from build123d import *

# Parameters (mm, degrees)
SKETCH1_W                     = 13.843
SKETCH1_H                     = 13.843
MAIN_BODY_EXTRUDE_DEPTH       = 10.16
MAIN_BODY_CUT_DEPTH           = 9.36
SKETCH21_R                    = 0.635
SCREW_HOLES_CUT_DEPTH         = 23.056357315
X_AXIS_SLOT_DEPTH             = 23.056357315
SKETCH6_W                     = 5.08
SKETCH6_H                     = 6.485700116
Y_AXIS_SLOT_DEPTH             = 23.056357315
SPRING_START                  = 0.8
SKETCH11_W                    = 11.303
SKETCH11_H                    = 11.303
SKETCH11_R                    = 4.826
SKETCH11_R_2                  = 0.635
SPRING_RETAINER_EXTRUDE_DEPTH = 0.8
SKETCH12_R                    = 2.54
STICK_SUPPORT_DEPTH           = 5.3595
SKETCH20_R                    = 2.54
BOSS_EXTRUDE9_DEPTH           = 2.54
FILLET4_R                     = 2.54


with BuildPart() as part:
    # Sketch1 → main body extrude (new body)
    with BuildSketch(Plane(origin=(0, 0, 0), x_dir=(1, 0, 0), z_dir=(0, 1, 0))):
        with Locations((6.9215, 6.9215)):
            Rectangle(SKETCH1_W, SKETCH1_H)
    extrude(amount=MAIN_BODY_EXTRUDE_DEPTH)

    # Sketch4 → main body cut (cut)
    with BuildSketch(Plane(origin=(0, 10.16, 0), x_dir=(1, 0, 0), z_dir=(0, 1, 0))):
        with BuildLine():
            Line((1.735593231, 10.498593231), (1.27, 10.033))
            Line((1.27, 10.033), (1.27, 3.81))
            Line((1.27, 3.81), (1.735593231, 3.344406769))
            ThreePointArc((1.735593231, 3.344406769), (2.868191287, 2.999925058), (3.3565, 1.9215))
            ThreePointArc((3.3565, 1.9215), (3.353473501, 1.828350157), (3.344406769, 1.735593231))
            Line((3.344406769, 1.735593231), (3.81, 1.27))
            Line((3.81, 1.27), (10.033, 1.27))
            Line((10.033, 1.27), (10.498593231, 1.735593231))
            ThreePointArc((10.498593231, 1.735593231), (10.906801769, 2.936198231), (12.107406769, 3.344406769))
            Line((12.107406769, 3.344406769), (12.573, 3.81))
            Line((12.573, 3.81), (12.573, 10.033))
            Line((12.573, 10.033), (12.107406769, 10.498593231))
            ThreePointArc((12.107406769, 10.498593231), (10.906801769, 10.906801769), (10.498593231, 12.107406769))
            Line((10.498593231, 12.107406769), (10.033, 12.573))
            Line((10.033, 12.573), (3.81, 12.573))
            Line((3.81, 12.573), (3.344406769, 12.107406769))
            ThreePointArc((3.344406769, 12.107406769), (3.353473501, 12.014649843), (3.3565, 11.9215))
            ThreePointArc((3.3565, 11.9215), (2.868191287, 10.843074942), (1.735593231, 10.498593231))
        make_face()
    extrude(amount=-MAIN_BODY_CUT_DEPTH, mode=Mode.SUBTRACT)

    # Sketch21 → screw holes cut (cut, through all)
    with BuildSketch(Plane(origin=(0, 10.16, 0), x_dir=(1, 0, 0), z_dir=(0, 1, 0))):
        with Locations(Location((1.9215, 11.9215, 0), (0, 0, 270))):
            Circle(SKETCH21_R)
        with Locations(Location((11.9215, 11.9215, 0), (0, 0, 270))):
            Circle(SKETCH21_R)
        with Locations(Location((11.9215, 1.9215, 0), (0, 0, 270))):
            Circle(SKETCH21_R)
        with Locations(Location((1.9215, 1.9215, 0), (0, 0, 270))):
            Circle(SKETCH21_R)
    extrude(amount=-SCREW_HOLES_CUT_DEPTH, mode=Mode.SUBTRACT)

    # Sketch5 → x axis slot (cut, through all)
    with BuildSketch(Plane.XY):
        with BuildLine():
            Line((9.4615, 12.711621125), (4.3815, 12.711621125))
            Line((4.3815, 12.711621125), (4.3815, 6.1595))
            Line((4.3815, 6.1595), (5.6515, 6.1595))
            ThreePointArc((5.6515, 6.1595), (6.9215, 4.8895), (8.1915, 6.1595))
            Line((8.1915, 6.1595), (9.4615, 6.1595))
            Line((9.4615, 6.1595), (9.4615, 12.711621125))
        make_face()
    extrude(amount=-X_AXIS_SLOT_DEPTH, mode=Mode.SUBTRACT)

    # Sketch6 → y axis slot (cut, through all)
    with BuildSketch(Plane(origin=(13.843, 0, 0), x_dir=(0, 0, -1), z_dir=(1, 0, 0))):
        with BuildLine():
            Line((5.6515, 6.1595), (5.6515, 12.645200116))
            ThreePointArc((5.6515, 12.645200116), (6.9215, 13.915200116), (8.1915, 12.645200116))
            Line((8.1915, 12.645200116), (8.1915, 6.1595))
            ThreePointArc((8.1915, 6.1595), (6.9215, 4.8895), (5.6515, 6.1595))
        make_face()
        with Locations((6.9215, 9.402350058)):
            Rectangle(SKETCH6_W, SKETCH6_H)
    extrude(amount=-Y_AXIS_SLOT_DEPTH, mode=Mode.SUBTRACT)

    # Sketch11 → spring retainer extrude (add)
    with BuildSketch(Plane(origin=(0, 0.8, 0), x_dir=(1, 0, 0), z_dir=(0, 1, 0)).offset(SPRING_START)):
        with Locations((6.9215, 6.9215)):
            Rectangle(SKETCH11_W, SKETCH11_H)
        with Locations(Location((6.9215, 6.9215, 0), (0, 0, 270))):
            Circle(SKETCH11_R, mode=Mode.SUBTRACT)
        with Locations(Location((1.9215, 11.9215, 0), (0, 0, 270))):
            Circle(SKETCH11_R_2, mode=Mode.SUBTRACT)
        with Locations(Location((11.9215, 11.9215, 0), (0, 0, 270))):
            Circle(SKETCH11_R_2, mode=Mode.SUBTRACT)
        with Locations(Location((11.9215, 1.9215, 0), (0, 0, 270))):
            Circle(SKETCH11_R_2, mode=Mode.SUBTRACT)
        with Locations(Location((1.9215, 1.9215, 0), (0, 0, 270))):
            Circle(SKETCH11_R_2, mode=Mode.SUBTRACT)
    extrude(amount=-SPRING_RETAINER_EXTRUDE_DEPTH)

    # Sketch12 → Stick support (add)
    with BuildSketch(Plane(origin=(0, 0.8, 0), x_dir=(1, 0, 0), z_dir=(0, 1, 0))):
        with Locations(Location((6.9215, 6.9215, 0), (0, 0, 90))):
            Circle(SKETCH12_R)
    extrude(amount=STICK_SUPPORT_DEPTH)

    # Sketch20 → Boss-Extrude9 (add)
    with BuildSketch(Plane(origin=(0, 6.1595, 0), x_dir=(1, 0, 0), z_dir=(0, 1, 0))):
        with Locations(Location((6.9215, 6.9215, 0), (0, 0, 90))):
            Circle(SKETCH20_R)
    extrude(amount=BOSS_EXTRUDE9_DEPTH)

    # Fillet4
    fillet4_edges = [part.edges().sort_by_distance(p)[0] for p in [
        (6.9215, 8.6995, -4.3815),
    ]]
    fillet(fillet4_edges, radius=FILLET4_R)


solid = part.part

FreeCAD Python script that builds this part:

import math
import FreeCAD as App
import Part
import Sketcher

V = App.Vector
Q = App.Units.Quantity


def edges_at(feature, points):
    """Names of the edges that pass closest to the given points."""
    edges = feature.Shape.Edges
    near = lambda p: min(range(len(edges)), key=lambda i: edges[i].distToShape(Part.Vertex(*p))[0])
    return sorted({f"Edge{near(p) + 1}" for p in points})


def add_polygon(sketch, points):
    """Adds a closed chain of lines whose ends are joined by coincident constraints."""
    first, n = sketch.GeometryCount, len(points)
    for a, b in zip(points, points[1:] + points[:1]):
        sketch.addGeometry(Part.LineSegment(App.Vector(*a, 0), App.Vector(*b, 0)), False)
    for i in range(n):
        sketch.addConstraint(Sketcher.Constraint("Coincident", first + i, 2, first + (i + 1) % n, 1))

doc = App.newDocument("Part")
body = doc.addObject("PartDesign::Body", "Body")

sketch1 = body.newObject("Sketcher::SketchObject", "Sketch")
sketch1.AttachmentSupport = (doc.getObject("XZ_Plane"), [""])
sketch1.MapMode = "FlatFace"
add_polygon(sketch1, [(0, -14), (0, 0), (14, 0), (14, -14)])
sketch1.addConstraint([
    Sketcher.Constraint("Vertical", 0),
    Sketcher.Constraint("Horizontal", 1),
    Sketcher.Constraint("Vertical", 2),
    Sketcher.Constraint("Horizontal", 3),
    Sketcher.Constraint("Coincident", 0, 2, -1, 1),
    Sketcher.Constraint("Equal", 3, 0),
    Sketcher.Constraint("DistanceX", 1, 1, 1, 2, Q("0.545 in")),
])
pad1 = body.newObject("PartDesign::Pad", "Pad")
pad1.Profile = sketch1
pad1.Length = Q("0.4 in")
pad1.Reversed = True

sketch2 = body.newObject("Sketcher::SketchObject", "Sketch001")
sketch2.AttachmentSupport = (doc.getObject("XZ_Plane"), [""])
sketch2.MapMode = "FlatFace"
sketch2.AttachmentOffset = App.Placement(V(0, 0, -0.4 * 25.4), App.Rotation())
sketch2.addGeometry([
    Part.LineSegment(V(1.74, -10.5, 0), V(1.27, -10.03, 0)),
    Part.LineSegment(V(1.27, -10.03, 0), V(1.27, -3.81, 0)),
    Part.LineSegment(V(1.27, -3.81, 0), V(1.74, -3.34, 0)),
    Part.ArcOfCircle(Part.Circle(V(1.92, -1.92, 0), V(0, 0, 1), 1.44), math.radians(-97), math.radians(0)),
    Part.ArcOfCircle(Part.Circle(V(1.92, -1.92, 0), V(0, 0, 1), 1.43), math.radians(0), math.radians(7.44)),
    Part.LineSegment(V(3.34, -1.74, 0), V(3.81, -1.27, 0)),
    Part.LineSegment(V(3.81, -1.27, 0), V(10.03, -1.27, 0)),
    Part.LineSegment(V(10.03, -1.27, 0), V(10.5, -1.74, 0)),
    Part.ArcOfCircle(Part.Circle(V(11.92, -1.92, 0), V(0, 0, 1), 1.44), math.radians(173), math.radians(277)),
    Part.LineSegment(V(12.11, -3.34, 0), V(12.57, -3.81, 0)),
    Part.LineSegment(V(12.57, -3.81, 0), V(12.57, -10.03, 0)),
    Part.LineSegment(V(12.57, -10.03, 0), V(12.11, -10.5, 0)),
    Part.ArcOfCircle(Part.Circle(V(11.92, -11.92, 0), V(0, 0, 1), 1.44), math.radians(83), math.radians(187)),
    Part.LineSegment(V(10.5, -12.11, 0), V(10.03, -12.57, 0)),
    Part.LineSegment(V(10.03, -12.57, 0), V(3.81, -12.57, 0)),
    Part.LineSegment(V(3.81, -12.57, 0), V(3.34, -12.11, 0)),
    Part.ArcOfCircle(Part.Circle(V(1.92, -11.92, 0), V(0, 0, 1), 1.43), math.radians(-7.44), math.radians(0)),
    Part.ArcOfCircle(Part.Circle(V(1.92, -11.92, 0), V(0, 0, 1), 1.44), math.radians(0), math.radians(97)),
], False)
sketch2.addConstraint([
    Sketcher.Constraint("Coincident", 0, 2, 1, 1),
    Sketcher.Constraint("Coincident", 1, 2, 2, 1),
    Sketcher.Constraint("Coincident", 2, 2, 3, 1),
    Sketcher.Constraint("Tangent", 3, 2, 4, 1),
    Sketcher.Constraint("Coincident", 4, 2, 5, 1),
    Sketcher.Constraint("Coincident", 5, 2, 6, 1),
    Sketcher.Constraint("Coincident", 6, 2, 7, 1),
    Sketcher.Constraint("Coincident", 7, 2, 8, 1),
    Sketcher.Constraint("Coincident", 8, 2, 9, 1),
    Sketcher.Constraint("Coincident", 9, 2, 10, 1),
    Sketcher.Constraint("Coincident", 10, 2, 11, 1),
    Sketcher.Constraint("Coincident", 11, 2, 12, 1),
    Sketcher.Constraint("Coincident", 12, 2, 13, 1),
    Sketcher.Constraint("Coincident", 13, 2, 14, 1),
    Sketcher.Constraint("Coincident", 14, 2, 15, 1),
    Sketcher.Constraint("Coincident", 15, 2, 16, 1),
    Sketcher.Constraint("Tangent", 16, 2, 17, 1),
    Sketcher.Constraint("Coincident", 17, 2, 0, 1),
    Sketcher.Constraint("Vertical", 1),
    Sketcher.Constraint("Horizontal", 6),
    Sketcher.Constraint("Vertical", 10),
    Sketcher.Constraint("Horizontal", 14),
    Sketcher.Constraint("Equal", 3, 4),
    Sketcher.Constraint("Equal", 4, 8),
    Sketcher.Constraint("Equal", 8, 12),
    Sketcher.Constraint("Equal", 12, 16),
    Sketcher.Constraint("Equal", 16, 17),
    Sketcher.Constraint("Perpendicular", 0, 2),
    Sketcher.Constraint("Parallel", 2, 5),
    Sketcher.Constraint("Perpendicular", 5, 7),
    Sketcher.Constraint("Parallel", 7, 9),
    Sketcher.Constraint("Perpendicular", 9, 11),
    Sketcher.Constraint("Parallel", 11, 13),
    Sketcher.Constraint("Perpendicular", 13, 15),
    Sketcher.Constraint("Horizontal", 4, 3, 8, 3),
    Sketcher.Constraint("Horizontal", 12, 3, 16, 3),
    Sketcher.Constraint("Horizontal", 8, 3, 3, 2),
    Sketcher.Constraint("Horizontal", 4, 2, 7, 2),
    Sketcher.Constraint("Horizontal", 2, 2, 8, 2),
    Sketcher.Constraint("Horizontal", 1, 2, 9, 2),
    Sketcher.Constraint("Horizontal", 0, 2, 10, 2),
    Sketcher.Constraint("Horizontal", 12, 2, 15, 2),
    Sketcher.Constraint("Horizontal", 17, 3, 16, 2),
    Sketcher.Constraint("Horizontal", 11, 2, 17, 2),
    Sketcher.Constraint("Vertical", 8, 3, 12, 3),
    Sketcher.Constraint("Vertical", 4, 3, 16, 3),
    Sketcher.Constraint("Vertical", 8, 2, 11, 2),
    Sketcher.Constraint("Vertical", 7, 2, 12, 2),
    Sketcher.Constraint("Vertical", 6, 2, 13, 2),
    Sketcher.Constraint("Equal", 14, 1),
    Sketcher.Constraint("Equal", 2, 5),
    Sketcher.Constraint("DistanceX", 6, 2, 9, 2, Q("0.1 in")),
    Sketcher.Constraint("DistanceY", 9, 2, 6, 2, Q("0.1 in")),
    Sketcher.Constraint("DistanceX", 6, 1, 6, 2, Q("0.245 in")),
    Sketcher.Constraint("DistanceX", -1, 1, 0, 2, Q("0.05 in")),
    Sketcher.Constraint("DistanceY", 1, 2, -1, 1, Q("0.15 in")),
    Sketcher.Constraint("Radius", 3, 1.435),
    Sketcher.Constraint("DistanceX", -1, 1, 3, 3, 1.9215),
])
pocket1 = body.newObject("PartDesign::Pocket", "Pocket")
pocket1.Profile = sketch2
pocket1.Length = 9.36
pocket1.Reversed = True

sketch3 = body.newObject("Sketcher::SketchObject", "Sketch002")
sketch3.AttachmentSupport = (doc.getObject("XZ_Plane"), [""])
sketch3.MapMode = "FlatFace"
sketch3.AttachmentOffset = App.Placement(V(0, 0, -0.4 * 25.4), App.Rotation())
sketch3.addGeometry([
    Part.Circle(V(1.9, -11.9, 0), V(0, 0, 1), 0.6),
    Part.Circle(V(11.9, -11.9, 0), V(0, 0, 1), 0.6),
    Part.Circle(V(11.9, -1.9, 0), V(0, 0, 1), 0.6),
    Part.Circle(V(1.9, -1.9, 0), V(0, 0, 1), 0.6),
], False)
sketch3.addConstraint([
    Sketcher.Constraint("Equal", 0, 1),
    Sketcher.Constraint("Equal", 1, 2),
    Sketcher.Constraint("Equal", 2, 3),
    Sketcher.Constraint("Horizontal", 0, 3, 1, 3),
    Sketcher.Constraint("Horizontal", 2, 3, 3, 3),
    Sketcher.Constraint("Vertical", 1, 3, 2, 3),
    Sketcher.Constraint("Vertical", 0, 3, 3, 3),
    Sketcher.Constraint("Diameter", 0, Q("0.05 in")),
    Sketcher.Constraint("DistanceX", -1, 1, 0, 3, 1.9215),
    Sketcher.Constraint("DistanceY", 0, 3, -1, 1, 11.9215),
    Sketcher.Constraint("DistanceX", -1, 1, 1, 3, 11.9215),
    Sketcher.Constraint("DistanceY", 2, 3, -1, 1, 1.9215),
])
pocket2 = body.newObject("PartDesign::Pocket", "Pocket001")
pocket2.Profile = sketch3
pocket2.Type = "ThroughAll"
pocket2.Reversed = True

sketch4 = body.newObject("Sketcher::SketchObject", "Sketch003")
sketch4.AttachmentSupport = (doc.getObject("XY_Plane"), [""])
sketch4.MapMode = "FlatFace"
sketch4.addGeometry([
    Part.LineSegment(V(9.5, 12.7, 0), V(4.4, 12.7, 0)),
    Part.LineSegment(V(4.4, 12.7, 0), V(4.4, 6.2, 0)),
    Part.LineSegment(V(4.4, 6.2, 0), V(5.7, 6.2, 0)),
    Part.ArcOfCircle(Part.Circle(V(6.9, 6.2, 0), V(0, 0, 1), 1.3), math.radians(180), math.radians(360)),
    Part.LineSegment(V(8.2, 6.2, 0), V(9.5, 6.2, 0)),
    Part.LineSegment(V(9.5, 6.2, 0), V(9.5, 12.7, 0)),
], False)
sketch4.addConstraint([
    Sketcher.Constraint("Coincident", 0, 2, 1, 1),
    Sketcher.Constraint("Coincident", 1, 2, 2, 1),
    Sketcher.Constraint("Coincident", 2, 2, 3, 1),
    Sketcher.Constraint("Coincident", 3, 2, 4, 1),
    Sketcher.Constraint("Coincident", 4, 2, 5, 1),
    Sketcher.Constraint("Coincident", 5, 2, 0, 1),
    Sketcher.Constraint("Horizontal", 0),
    Sketcher.Constraint("Vertical", 1),
    Sketcher.Constraint("Horizontal", 2),
    Sketcher.Constraint("Horizontal", 4),
    Sketcher.Constraint("Vertical", 5),
    Sketcher.Constraint("Horizontal", 3, 3, 1, 2),
    Sketcher.Constraint("Horizontal", 2, 2, 3, 2),
    Sketcher.Constraint("Equal", 2, 4),
    Sketcher.Constraint("Radius", 3, Q("0.05 in")),
    Sketcher.Constraint("DistanceX", 0, 2, 0, 1, Q("0.2 in")),
    Sketcher.Constraint("DistanceX", -1, 1, 3, 3, Q("0.2725 in")),
    Sketcher.Constraint("DistanceY", -1, 1, 3, 3, Q("0.2425 in")),
    Sketcher.Constraint("DistanceY", 1, 2, 1, 1, 6.552121),
])
pocket3 = body.newObject("PartDesign::Pocket", "Pocket002")
pocket3.Profile = sketch4
pocket3.Type = "ThroughAll"

sketch5 = body.newObject("Sketcher::SketchObject", "Sketch004")
sketch5.AttachmentSupport = (doc.getObject("YZ_Plane"), [""])
sketch5.MapMode = "FlatFace"
sketch5.AttachmentOffset = App.Placement(V(0, 0, 0.545 * 25.4), App.Rotation())
sketch5.addGeometry([
    Part.ArcOfCircle(Part.Circle(V(6.2, -6.9, 0), V(0, 0, 1), 1.3), math.radians(90), math.radians(270)),
    Part.LineSegment(V(6.2, -8.2, 0), V(6.2, -9.5, 0)),
    Part.LineSegment(V(6.2, -9.5, 0), V(12.6, -9.5, 0)),
    Part.LineSegment(V(12.6, -9.5, 0), V(12.6, -8.2, 0)),
    Part.ArcOfCircle(Part.Circle(V(12.6, -6.9, 0), V(0, 0, 1), 1.3), math.radians(-90), math.radians(90)),
    Part.LineSegment(V(12.6, -5.7, 0), V(12.6, -4.4, 0)),
    Part.LineSegment(V(12.6, -4.4, 0), V(6.2, -4.4, 0)),
    Part.LineSegment(V(6.2, -4.4, 0), V(6.2, -5.7, 0)),
], False)
sketch5.addConstraint([
    Sketcher.Constraint("Coincident", 0, 2, 1, 1),
    Sketcher.Constraint("Coincident", 1, 2, 2, 1),
    Sketcher.Constraint("Coincident", 2, 2, 3, 1),
    Sketcher.Constraint("Coincident", 3, 2, 4, 1),
    Sketcher.Constraint("Coincident", 4, 2, 5, 1),
    Sketcher.Constraint("Coincident", 5, 2, 6, 1),
    Sketcher.Constraint("Coincident", 6, 2, 7, 1),
    Sketcher.Constraint("Coincident", 7, 2, 0, 1),
    Sketcher.Constraint("Vertical", 1),
    Sketcher.Constraint("Horizontal", 2),
    Sketcher.Constraint("Vertical", 3),
    Sketcher.Constraint("Vertical", 5),
    Sketcher.Constraint("Horizontal", 6),
    Sketcher.Constraint("Vertical", 7),
    Sketcher.Constraint("Equal", 0, 4),
    Sketcher.Constraint("Horizontal", 0, 3, 4, 3),
    Sketcher.Constraint("Vertical", 4, 3, 2, 2),
    Sketcher.Constraint("Vertical", 3, 2, 4, 2),
    Sketcher.Constraint("Vertical", 1, 2, 6, 2),
    Sketcher.Constraint("Equal", 3, 5),
    Sketcher.Constraint("Radius", 0, Q("0.05 in")),
    Sketcher.Constraint("DistanceY", 1, 2, 1, 1, Q("0.05 in")),
    Sketcher.Constraint("DistanceX", 2, 1, 2, 2, 6.4857),
    Sketcher.Constraint("DistanceX", -1, 1, 0, 3, Q("0.2425 in")),
    Sketcher.Constraint("DistanceY", 0, 3, -1, 1, Q("0.2725 in")),
    Sketcher.Constraint("DistanceX", -1, 1, 0, 2, Q("0.2425 in")),
])
pocket4 = body.newObject("PartDesign::Pocket", "Pocket003")
pocket4.Profile = sketch5
pocket4.Type = "ThroughAll"

sketch6 = body.newObject("Sketcher::SketchObject", "Sketch005")
sketch6.AttachmentSupport = (doc.getObject("XZ_Plane"), [""])
sketch6.MapMode = "FlatFace"
sketch6.AttachmentOffset = App.Placement(V(0, 0, -1.6), App.Rotation())
add_polygon(sketch6, [(1.3, -12.6), (1.3, -1.3), (12.6, -1.3), (12.6, -12.6)])
sketch6.addGeometry(Part.Circle(V(1.9, -1.9, 0), V(0, 0, 1), 0.6), False)
sketch6.addGeometry(Part.Circle(V(11.9, -1.9, 0), V(0, 0, 1), 0.6), False)
sketch6.addGeometry(Part.Circle(V(1.9, -11.9, 0), V(0, 0, 1), 0.6), False)
sketch6.addGeometry(Part.Circle(V(6.9, -6.9, 0), V(0, 0, 1), 4.8), False)
sketch6.addGeometry(Part.Circle(V(11.9, -11.9, 0), V(0, 0, 1), 0.6), False)
sketch6.addConstraint([
    Sketcher.Constraint("Vertical", 0),
    Sketcher.Constraint("Horizontal", 1),
    Sketcher.Constraint("Vertical", 2),
    Sketcher.Constraint("Horizontal", 3),
    Sketcher.Constraint("Equal", 4, 5),
    Sketcher.Constraint("Equal", 5, 6),
    Sketcher.Constraint("Equal", 6, 8),
    Sketcher.Constraint("Horizontal", 4, 3, 5, 3),
    Sketcher.Constraint("Horizontal", 6, 3, 8, 3),
    Sketcher.Constraint("Vertical", 4, 3, 6, 3),
    Sketcher.Constraint("Vertical", 5, 3, 8, 3),
    Sketcher.Constraint("Equal", 3, 0),
    Sketcher.Constraint("Diameter", 4, Q("0.05 in")),
    Sketcher.Constraint("Diameter", 7, Q("0.38 in")),
    Sketcher.Constraint("DistanceX", 1, 1, 1, 2, Q("0.445 in")),
    Sketcher.Constraint("DistanceX", -1, 1, 0, 2, Q("0.05 in")),
    Sketcher.Constraint("DistanceY", 0, 2, -1, 1, Q("0.05 in")),
    Sketcher.Constraint("DistanceX", -1, 1, 7, 3, Q("0.2725 in")),
    Sketcher.Constraint("DistanceY", 7, 3, -1, 1, Q("0.2725 in")),
    Sketcher.Constraint("DistanceX", -1, 1, 4, 3, 1.9215),
    Sketcher.Constraint("DistanceY", 4, 3, -1, 1, 1.9215),
    Sketcher.Constraint("DistanceX", -1, 1, 5, 3, 11.9215),
    Sketcher.Constraint("DistanceY", 6, 3, -1, 1, 11.9215),
])
pad2 = body.newObject("PartDesign::Pad", "Pad001")
pad2.Profile = sketch6
pad2.Length = 0.8

sketch7 = body.newObject("Sketcher::SketchObject", "Sketch006")
sketch7.AttachmentSupport = (doc.getObject("XZ_Plane"), [""])
sketch7.MapMode = "FlatFace"
sketch7.AttachmentOffset = App.Placement(V(0, 0, -0.8), App.Rotation())
sketch7.addGeometry(Part.Circle(V(6.9, -6.9, 0), V(0, 0, 1), 2.5), False)
sketch7.addConstraint([
    Sketcher.Constraint("Diameter", 0, Q("0.2 in")),
    Sketcher.Constraint("DistanceX", -1, 1, 0, 3, Q("0.2725 in")),
    Sketcher.Constraint("DistanceY", 0, 3, -1, 1, Q("0.2725 in")),
])
pad3 = body.newObject("PartDesign::Pad", "Pad002")
pad3.Profile = sketch7
pad3.Length = 5.3595
pad3.Reversed = True

sketch8 = body.newObject("Sketcher::SketchObject", "Sketch007")
sketch8.AttachmentSupport = (doc.getObject("XZ_Plane"), [""])
sketch8.MapMode = "FlatFace"
sketch8.AttachmentOffset = App.Placement(V(0, 0, -0.2425 * 25.4), App.Rotation())
sketch8.addGeometry(Part.Circle(V(6.9, -6.9, 0), V(0, 0, 1), 2.5), False)
sketch8.addConstraint([
    Sketcher.Constraint("Diameter", 0, Q("0.2 in")),
    Sketcher.Constraint("DistanceX", -1, 1, 0, 3, Q("0.2725 in")),
    Sketcher.Constraint("DistanceY", 0, 3, -1, 1, Q("0.2725 in")),
])
pad4 = body.newObject("PartDesign::Pad", "Pad003")
pad4.Profile = sketch8
pad4.Length = Q("0.1 in")
pad4.Reversed = True
doc.recompute()

fillet = body.newObject("PartDesign::Fillet", "Fillet")
fillet.Base = (pad4, edges_at(pad4, [(6.921, 8.7, -4.381)]))
fillet.Radius = Q("0.1 in")

doc.recompute()
